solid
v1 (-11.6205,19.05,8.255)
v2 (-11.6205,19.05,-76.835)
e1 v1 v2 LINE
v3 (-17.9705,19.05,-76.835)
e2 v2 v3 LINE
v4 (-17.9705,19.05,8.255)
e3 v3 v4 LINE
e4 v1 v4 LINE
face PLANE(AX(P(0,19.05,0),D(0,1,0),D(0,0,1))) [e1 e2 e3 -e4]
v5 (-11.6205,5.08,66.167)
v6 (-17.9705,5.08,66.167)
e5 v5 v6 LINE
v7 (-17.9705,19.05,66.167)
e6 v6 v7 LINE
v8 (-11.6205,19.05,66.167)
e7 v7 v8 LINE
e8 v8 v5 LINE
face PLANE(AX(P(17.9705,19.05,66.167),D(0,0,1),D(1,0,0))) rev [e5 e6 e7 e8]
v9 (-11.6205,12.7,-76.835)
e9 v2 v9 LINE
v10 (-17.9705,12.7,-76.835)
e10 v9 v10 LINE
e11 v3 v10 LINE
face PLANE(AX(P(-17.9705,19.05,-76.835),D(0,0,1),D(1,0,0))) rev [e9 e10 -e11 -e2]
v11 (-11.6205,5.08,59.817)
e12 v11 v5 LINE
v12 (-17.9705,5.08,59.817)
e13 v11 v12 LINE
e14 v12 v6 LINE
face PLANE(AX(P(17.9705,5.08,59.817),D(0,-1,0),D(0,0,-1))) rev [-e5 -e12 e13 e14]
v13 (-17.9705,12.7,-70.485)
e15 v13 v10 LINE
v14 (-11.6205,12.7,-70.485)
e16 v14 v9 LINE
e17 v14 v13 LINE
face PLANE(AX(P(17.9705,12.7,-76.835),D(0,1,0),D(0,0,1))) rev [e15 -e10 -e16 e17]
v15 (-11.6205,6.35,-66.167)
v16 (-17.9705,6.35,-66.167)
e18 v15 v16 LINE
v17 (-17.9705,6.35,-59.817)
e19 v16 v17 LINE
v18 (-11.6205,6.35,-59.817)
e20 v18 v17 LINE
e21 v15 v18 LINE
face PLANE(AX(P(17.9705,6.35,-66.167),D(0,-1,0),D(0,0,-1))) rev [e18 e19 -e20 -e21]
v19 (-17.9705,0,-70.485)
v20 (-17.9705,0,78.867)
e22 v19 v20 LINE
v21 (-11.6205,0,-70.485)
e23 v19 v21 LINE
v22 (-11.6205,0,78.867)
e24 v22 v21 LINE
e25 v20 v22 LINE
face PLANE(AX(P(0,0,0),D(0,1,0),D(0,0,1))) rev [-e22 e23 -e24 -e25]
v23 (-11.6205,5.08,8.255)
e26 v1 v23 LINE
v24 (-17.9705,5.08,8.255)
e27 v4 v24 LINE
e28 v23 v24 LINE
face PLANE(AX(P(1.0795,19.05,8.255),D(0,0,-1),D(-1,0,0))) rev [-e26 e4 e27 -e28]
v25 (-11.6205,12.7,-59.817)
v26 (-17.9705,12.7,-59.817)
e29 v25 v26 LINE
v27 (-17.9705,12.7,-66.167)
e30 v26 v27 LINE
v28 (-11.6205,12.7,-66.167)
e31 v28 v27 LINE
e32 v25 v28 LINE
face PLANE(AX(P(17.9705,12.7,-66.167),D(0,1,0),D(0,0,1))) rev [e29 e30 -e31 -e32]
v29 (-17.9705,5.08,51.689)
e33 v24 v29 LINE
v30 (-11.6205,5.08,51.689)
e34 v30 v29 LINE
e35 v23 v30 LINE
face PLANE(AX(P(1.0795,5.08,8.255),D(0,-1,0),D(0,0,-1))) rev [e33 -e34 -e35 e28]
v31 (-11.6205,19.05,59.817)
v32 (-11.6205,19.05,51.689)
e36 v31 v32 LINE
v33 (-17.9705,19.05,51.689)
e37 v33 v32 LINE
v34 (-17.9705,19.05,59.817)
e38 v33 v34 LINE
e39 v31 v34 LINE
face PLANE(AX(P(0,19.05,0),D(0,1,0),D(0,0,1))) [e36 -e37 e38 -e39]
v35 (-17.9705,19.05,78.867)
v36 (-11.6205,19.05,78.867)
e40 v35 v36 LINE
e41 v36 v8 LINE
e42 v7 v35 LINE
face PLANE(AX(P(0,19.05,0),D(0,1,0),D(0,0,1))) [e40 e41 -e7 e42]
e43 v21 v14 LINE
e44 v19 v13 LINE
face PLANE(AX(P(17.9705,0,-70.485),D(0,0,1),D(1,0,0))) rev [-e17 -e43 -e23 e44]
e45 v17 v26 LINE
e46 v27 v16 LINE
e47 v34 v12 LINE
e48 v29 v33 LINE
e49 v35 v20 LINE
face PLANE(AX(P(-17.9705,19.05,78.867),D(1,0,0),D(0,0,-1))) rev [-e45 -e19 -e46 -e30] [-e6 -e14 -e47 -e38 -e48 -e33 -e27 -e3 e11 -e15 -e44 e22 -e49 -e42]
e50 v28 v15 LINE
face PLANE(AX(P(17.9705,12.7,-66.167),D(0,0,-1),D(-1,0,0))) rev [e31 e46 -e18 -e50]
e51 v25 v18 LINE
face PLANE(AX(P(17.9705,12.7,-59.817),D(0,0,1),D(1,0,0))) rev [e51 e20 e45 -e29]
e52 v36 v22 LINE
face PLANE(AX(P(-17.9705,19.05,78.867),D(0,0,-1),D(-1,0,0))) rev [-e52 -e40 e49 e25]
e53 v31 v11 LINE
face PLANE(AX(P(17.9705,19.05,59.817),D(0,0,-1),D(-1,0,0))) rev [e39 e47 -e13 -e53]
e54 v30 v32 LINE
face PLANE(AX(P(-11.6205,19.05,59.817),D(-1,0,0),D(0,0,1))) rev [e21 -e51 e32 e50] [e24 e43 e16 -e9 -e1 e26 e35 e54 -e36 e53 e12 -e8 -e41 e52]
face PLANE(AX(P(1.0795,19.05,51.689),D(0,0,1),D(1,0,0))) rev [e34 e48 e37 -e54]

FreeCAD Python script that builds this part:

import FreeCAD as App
import Part
import Sketcher
Q = App.Units.Quantity


def add_polygon(sketch, points):
    """Adds a closed chain of lines whose ends are joined by coincident constraints."""
    first, n = sketch.GeometryCount, len(points)
    for a, b in zip(points, points[1:] + points[:1]):
        sketch.addGeometry(Part.LineSegment(App.Vector(*a, 0), App.Vector(*b, 0)), False)
    for i in range(n):
        sketch.addConstraint(Sketcher.Constraint("Coincident", first + i, 2, first + (i + 1) % n, 1))

doc = App.newDocument("Part")
params = doc.addObject("Spreadsheet::Sheet", "Params")
for row, (alias, value) in enumerate([
    ("sketch1_height", "0.5 in"),
    ("sketch1_width", "0.25 in"),
    ("sketch1_height2", "0.42 in"),
    ("sketch1_height3", "6.13 in"),
    ("sketch1_width2", "0.0625 in"),
    ("pad1_length", "0.75 in"),
    ("sketch2_width", "0.55 in"),
    ("sketch2_height", "1.71 in"),
    ("pocket1_length", "0.75 in"),
    ("sketch3_width", "0.5 in"),
    ("sketch3_height", "0.25 in"),
    ("sketch4_width", "0.55 in"),
    ("sketch4_width2", "0.25 in"),
], start=1):
    params.set(f"A{row}", alias)
    params.set(f"B{row}", "=" + value)
    params.setAlias(f"B{row}", alias)

body = doc.addObject("PartDesign::Body", "Body")

# Sketch on XZ plane
sketch1 = body.newObject("Sketcher::SketchObject", "Sketch")
sketch1.AttachmentSupport = (doc.getObject("XZ_Plane"), [""])
sketch1.MapMode = "FlatFace"
add_polygon(sketch1, [(-10, -66.2), (-11.6, -66.2), (-11.6, -76.8), (-18, -76.8), (-18, 78.9), (-11.6, 78.9), (-11.6, 66.2), (11.6, 66.2), (11.6, 78.9), (18, 78.9), (18, -76.8), (11.6, -76.8), (11.6, -66.2), (10, -66.2), (10, -59.8), (11.6, -59.8), (11.6, 59.8), (-11.6, 59.8), (-11.6, -59.8), (-10, -59.8)])  # lines 0-19
sketch1.addConstraint([
    Sketcher.Constraint("Horizontal", 0),
    Sketcher.Constraint("Vertical", 1),
    Sketcher.Constraint("Horizontal", 2),
    Sketcher.Constraint("Vertical", 3),
    Sketcher.Constraint("Horizontal", 4),
    Sketcher.Constraint("Vertical", 5),
    Sketcher.Constraint("Horizontal", 6),
    Sketcher.Constraint("Vertical", 7),
    Sketcher.Constraint("Horizontal", 8),
    Sketcher.Constraint("Vertical", 9),
    Sketcher.Constraint("Horizontal", 10),
    Sketcher.Constraint("Vertical", 11),
    Sketcher.Constraint("Horizontal", 12),
    Sketcher.Constraint("Vertical", 13),
    Sketcher.Constraint("Horizontal", 14),
    Sketcher.Constraint("Vertical", 15),
    Sketcher.Constraint("Horizontal", 16),
    Sketcher.Constraint("Vertical", 17),
    Sketcher.Constraint("Horizontal", 18),
    Sketcher.Constraint("Vertical", 19),
    Sketcher.Constraint("Symmetric", 0, 2, 6, 2, -1, 1),
    Sketcher.Constraint("Symmetric", 5, 2, 11, 2, -1, 1),
    Sketcher.Constraint("Symmetric", 14, 2, 16, 2, -1, 1),
    Sketcher.Constraint("Symmetric", 4, 2, 7, 2, -2),
    Sketcher.Constraint("Symmetric", 2, 2, 9, 2, -2),
    Sketcher.Constraint("Symmetric", 13, 2, 18, 2, -2),
    Sketcher.Constraint("Vertical", 11, 2, 14, 2),
    Sketcher.Constraint("Equal", 10, 13),
    Sketcher.Constraint("DistanceY", 5, 2, 5, 1, Q("0.5 in")),
    Sketcher.Constraint("DistanceX", 2, 2, 2, 1, Q("0.25 in")),
    Sketcher.Constraint("DistanceY", 1, 2, 1, 1, Q("0.42 in")),
    Sketcher.Constraint("DistanceY", 3, 1, 3, 2, Q("6.13 in")),
    Sketcher.Constraint("DistanceX", 0, 2, 0, 1, Q("0.0625 in")),
    Sketcher.Constraint("DistanceX", 6, 1, 6, 2, Q("0.915 in")),
])
sketch1.setExpression("Constraints[48]", "Params.sketch1_height")
sketch1.setExpression("Constraints[49]", "Params.sketch1_width")
sketch1.setExpression("Constraints[50]", "Params.sketch1_height2")
sketch1.setExpression("Constraints[51]", "Params.sketch1_height3")
sketch1.setExpression("Constraints[52]", "Params.sketch1_width2")
pad1 = body.newObject("PartDesign::Pad", "Pad")
pad1.Profile = sketch1
pad1.setExpression("Length", "Params.pad1_length")
pad1.Reversed = True

# Sketch on YZ plane
sketch2 = body.newObject("Sketcher::SketchObject", "Sketch001")
sketch2.AttachmentSupport = (doc.getObject("YZ_Plane"), [""])
sketch2.MapMode = "FlatFace"
sketch2.AttachmentOffset = App.Placement(App.Vector(0, 0, -0.7075 * 25.4), App.Rotation())
add_polygon(sketch2, [(19, 8), (5, 8), (5, 52), (19, 52)])  # lines 0-3
sketch2.addConstraint([
    Sketcher.Constraint("Horizontal", 0),
    Sketcher.Constraint("Vertical", 1),
    Sketcher.Constraint("Horizontal", 2),
    Sketcher.Constraint("Vertical", 3),
    Sketcher.Constraint("DistanceX", 0, 2, 0, 1, Q("0.55 in")),
    Sketcher.Constraint("DistanceY", 1, 1, 1, 2, Q("1.71 in")),
    Sketcher.Constraint("DistanceX", -1, 1, 0, 2, Q("0.2 in")),
    Sketcher.Constraint("DistanceY", -1, 1, 0, 2, Q("0.325 in")),
])
sketch2.setExpression("Constraints[8]", "Params.sketch2_width")
sketch2.setExpression("Constraints[9]", "Params.sketch2_height")
pocket1 = body.newObject("PartDesign::Pocket", "Pocket")
pocket1.Profile = sketch2
pocket1.setExpression("Length", "Params.pocket1_length")
pocket1.Reversed = True

# Sketch on YZ plane
sketch3 = body.newObject("Sketcher::SketchObject", "Sketch002")
sketch3.AttachmentSupport = (doc.getObject("YZ_Plane"), [""])
sketch3.MapMode = "FlatFace"
sketch3.AttachmentOffset = App.Placement(App.Vector(0, 0, -0.7075 * 25.4), App.Rotation())
add_polygon(sketch3, [(13, -77), (0, -77), (0, -70), (13, -70)])  # lines 0-3
sketch3.addConstraint([
    Sketcher.Constraint("Horizontal", 0),
    Sketcher.Constraint("Vertical", 1),
    Sketcher.Constraint("Horizontal", 2),
    Sketcher.Constraint("Vertical", 3),
    Sketcher.Constraint("PointOnObject", 0, 2, -2),
    Sketcher.Constraint("DistanceX", 0, 2, 0, 1, Q("0.5 in")),
    Sketcher.Constraint("DistanceY", 1, 1, 1, 2, Q("0.25 in")),
    Sketcher.Constraint("DistanceY", 0, 2, -1, 1, Q("3.025 in")),
])
sketch3.setExpression("Constraints[9]", "Params.sketch3_width")
sketch3.setExpression("Constraints[10]", "Params.sketch3_height")
pocket2 = body.newObject("PartDesign::Pocket", "Pocket001")
pocket2.Profile = sketch3
pocket2.Type = "ThroughAll"
pocket2.Reversed = True

# Sketch on YZ plane
sketch4 = body.newObject("Sketcher::SketchObject", "Sketch003")
sketch4.AttachmentSupport = (doc.getObject("YZ_Plane"), [""])
sketch4.MapMode = "FlatFace"
sketch4.AttachmentOffset = App.Placement(App.Vector(0, 0, -0.7075 * 25.4), App.Rotation())
add_polygon(sketch4, [(19, 60), (5, 60), (5, 66), (19, 66)])  # lines 0-3
add_polygon(sketch4, [(13, -66), (6, -66), (6, -60), (13, -60)])  # lines 4-7
sketch4.addConstraint([
    Sketcher.Constraint("Horizontal", 0),
    Sketcher.Constraint("Vertical", 1),
    Sketcher.Constraint("Horizontal", 2),
    Sketcher.Constraint("Vertical", 3),
    Sketcher.Constraint("Horizontal", 4),
    Sketcher.Constraint("Vertical", 5),
    Sketcher.Constraint("Horizontal", 6),
    Sketcher.Constraint("Vertical", 7),
    Sketcher.Constraint("Equal", 6, 1),
    Sketcher.Constraint("Equal", 3, 5),
    Sketcher.Constraint("DistanceX", 0, 2, 0, 1, Q("0.55 in")),
    Sketcher.Constraint("DistanceX", 4, 2, 4, 1, Q("0.25 in")),
    Sketcher.Constraint("DistanceX", -1, 1, 0, 2, Q("0.2 in")),
    Sketcher.Constraint("DistanceX", -1, 1, 6, 2, Q("0.5 in")),
    Sketcher.Constraint("DistanceY", 4, 2, 0, 2, Q("4.96 in")),
    Sketcher.Constraint("DistanceY", -1, 1, 0, 2, Q("2.355 in")),
])
sketch4.setExpression("Constraints[18]", "Params.sketch4_width")
sketch4.setExpression("Constraints[19]", "Params.sketch4_width2")
pocket3 = body.newObject("PartDesign::Pocket", "Pocket002")
pocket3.Profile = sketch4
pocket3.Type = "ThroughAll"
pocket3.Reversed = True

# Sketch on XZ plane
sketch5 = body.newObject("Sketcher::SketchObject", "Sketch004")
sketch5.AttachmentSupport = (doc.getObject("XZ_Plane"), [""])
sketch5.MapMode = "FlatFace"
add_polygon(sketch5, [(-12, -81), (-12, 79), (39, 79), (39, -81)])  # lines 0-3
sketch5.addConstraint([
    Sketcher.Constraint("Vertical", 0),
    Sketcher.Constraint("Horizontal", 1),
    Sketcher.Constraint("Vertical", 2),
    Sketcher.Constraint("Horizontal", 3),
    Sketcher.Constraint("DistanceY", -1, 1, 0, 2, Q("3.105 in")),
    Sketcher.Constraint("DistanceX", 0, 2, -1, 1, Q("0.4575 in")),
    Sketcher.Constraint("DistanceX", 1, 1, 1, 2, 50.257508),
    Sketcher.Constraint("DistanceY", 0, 1, 0, 2, 159.787424),
])
pocket4 = body.newObject("PartDesign::Pocket", "Pocket003")
pocket4.Profile = sketch5
pocket4.Type = "ThroughAll"

doc.recompute()
